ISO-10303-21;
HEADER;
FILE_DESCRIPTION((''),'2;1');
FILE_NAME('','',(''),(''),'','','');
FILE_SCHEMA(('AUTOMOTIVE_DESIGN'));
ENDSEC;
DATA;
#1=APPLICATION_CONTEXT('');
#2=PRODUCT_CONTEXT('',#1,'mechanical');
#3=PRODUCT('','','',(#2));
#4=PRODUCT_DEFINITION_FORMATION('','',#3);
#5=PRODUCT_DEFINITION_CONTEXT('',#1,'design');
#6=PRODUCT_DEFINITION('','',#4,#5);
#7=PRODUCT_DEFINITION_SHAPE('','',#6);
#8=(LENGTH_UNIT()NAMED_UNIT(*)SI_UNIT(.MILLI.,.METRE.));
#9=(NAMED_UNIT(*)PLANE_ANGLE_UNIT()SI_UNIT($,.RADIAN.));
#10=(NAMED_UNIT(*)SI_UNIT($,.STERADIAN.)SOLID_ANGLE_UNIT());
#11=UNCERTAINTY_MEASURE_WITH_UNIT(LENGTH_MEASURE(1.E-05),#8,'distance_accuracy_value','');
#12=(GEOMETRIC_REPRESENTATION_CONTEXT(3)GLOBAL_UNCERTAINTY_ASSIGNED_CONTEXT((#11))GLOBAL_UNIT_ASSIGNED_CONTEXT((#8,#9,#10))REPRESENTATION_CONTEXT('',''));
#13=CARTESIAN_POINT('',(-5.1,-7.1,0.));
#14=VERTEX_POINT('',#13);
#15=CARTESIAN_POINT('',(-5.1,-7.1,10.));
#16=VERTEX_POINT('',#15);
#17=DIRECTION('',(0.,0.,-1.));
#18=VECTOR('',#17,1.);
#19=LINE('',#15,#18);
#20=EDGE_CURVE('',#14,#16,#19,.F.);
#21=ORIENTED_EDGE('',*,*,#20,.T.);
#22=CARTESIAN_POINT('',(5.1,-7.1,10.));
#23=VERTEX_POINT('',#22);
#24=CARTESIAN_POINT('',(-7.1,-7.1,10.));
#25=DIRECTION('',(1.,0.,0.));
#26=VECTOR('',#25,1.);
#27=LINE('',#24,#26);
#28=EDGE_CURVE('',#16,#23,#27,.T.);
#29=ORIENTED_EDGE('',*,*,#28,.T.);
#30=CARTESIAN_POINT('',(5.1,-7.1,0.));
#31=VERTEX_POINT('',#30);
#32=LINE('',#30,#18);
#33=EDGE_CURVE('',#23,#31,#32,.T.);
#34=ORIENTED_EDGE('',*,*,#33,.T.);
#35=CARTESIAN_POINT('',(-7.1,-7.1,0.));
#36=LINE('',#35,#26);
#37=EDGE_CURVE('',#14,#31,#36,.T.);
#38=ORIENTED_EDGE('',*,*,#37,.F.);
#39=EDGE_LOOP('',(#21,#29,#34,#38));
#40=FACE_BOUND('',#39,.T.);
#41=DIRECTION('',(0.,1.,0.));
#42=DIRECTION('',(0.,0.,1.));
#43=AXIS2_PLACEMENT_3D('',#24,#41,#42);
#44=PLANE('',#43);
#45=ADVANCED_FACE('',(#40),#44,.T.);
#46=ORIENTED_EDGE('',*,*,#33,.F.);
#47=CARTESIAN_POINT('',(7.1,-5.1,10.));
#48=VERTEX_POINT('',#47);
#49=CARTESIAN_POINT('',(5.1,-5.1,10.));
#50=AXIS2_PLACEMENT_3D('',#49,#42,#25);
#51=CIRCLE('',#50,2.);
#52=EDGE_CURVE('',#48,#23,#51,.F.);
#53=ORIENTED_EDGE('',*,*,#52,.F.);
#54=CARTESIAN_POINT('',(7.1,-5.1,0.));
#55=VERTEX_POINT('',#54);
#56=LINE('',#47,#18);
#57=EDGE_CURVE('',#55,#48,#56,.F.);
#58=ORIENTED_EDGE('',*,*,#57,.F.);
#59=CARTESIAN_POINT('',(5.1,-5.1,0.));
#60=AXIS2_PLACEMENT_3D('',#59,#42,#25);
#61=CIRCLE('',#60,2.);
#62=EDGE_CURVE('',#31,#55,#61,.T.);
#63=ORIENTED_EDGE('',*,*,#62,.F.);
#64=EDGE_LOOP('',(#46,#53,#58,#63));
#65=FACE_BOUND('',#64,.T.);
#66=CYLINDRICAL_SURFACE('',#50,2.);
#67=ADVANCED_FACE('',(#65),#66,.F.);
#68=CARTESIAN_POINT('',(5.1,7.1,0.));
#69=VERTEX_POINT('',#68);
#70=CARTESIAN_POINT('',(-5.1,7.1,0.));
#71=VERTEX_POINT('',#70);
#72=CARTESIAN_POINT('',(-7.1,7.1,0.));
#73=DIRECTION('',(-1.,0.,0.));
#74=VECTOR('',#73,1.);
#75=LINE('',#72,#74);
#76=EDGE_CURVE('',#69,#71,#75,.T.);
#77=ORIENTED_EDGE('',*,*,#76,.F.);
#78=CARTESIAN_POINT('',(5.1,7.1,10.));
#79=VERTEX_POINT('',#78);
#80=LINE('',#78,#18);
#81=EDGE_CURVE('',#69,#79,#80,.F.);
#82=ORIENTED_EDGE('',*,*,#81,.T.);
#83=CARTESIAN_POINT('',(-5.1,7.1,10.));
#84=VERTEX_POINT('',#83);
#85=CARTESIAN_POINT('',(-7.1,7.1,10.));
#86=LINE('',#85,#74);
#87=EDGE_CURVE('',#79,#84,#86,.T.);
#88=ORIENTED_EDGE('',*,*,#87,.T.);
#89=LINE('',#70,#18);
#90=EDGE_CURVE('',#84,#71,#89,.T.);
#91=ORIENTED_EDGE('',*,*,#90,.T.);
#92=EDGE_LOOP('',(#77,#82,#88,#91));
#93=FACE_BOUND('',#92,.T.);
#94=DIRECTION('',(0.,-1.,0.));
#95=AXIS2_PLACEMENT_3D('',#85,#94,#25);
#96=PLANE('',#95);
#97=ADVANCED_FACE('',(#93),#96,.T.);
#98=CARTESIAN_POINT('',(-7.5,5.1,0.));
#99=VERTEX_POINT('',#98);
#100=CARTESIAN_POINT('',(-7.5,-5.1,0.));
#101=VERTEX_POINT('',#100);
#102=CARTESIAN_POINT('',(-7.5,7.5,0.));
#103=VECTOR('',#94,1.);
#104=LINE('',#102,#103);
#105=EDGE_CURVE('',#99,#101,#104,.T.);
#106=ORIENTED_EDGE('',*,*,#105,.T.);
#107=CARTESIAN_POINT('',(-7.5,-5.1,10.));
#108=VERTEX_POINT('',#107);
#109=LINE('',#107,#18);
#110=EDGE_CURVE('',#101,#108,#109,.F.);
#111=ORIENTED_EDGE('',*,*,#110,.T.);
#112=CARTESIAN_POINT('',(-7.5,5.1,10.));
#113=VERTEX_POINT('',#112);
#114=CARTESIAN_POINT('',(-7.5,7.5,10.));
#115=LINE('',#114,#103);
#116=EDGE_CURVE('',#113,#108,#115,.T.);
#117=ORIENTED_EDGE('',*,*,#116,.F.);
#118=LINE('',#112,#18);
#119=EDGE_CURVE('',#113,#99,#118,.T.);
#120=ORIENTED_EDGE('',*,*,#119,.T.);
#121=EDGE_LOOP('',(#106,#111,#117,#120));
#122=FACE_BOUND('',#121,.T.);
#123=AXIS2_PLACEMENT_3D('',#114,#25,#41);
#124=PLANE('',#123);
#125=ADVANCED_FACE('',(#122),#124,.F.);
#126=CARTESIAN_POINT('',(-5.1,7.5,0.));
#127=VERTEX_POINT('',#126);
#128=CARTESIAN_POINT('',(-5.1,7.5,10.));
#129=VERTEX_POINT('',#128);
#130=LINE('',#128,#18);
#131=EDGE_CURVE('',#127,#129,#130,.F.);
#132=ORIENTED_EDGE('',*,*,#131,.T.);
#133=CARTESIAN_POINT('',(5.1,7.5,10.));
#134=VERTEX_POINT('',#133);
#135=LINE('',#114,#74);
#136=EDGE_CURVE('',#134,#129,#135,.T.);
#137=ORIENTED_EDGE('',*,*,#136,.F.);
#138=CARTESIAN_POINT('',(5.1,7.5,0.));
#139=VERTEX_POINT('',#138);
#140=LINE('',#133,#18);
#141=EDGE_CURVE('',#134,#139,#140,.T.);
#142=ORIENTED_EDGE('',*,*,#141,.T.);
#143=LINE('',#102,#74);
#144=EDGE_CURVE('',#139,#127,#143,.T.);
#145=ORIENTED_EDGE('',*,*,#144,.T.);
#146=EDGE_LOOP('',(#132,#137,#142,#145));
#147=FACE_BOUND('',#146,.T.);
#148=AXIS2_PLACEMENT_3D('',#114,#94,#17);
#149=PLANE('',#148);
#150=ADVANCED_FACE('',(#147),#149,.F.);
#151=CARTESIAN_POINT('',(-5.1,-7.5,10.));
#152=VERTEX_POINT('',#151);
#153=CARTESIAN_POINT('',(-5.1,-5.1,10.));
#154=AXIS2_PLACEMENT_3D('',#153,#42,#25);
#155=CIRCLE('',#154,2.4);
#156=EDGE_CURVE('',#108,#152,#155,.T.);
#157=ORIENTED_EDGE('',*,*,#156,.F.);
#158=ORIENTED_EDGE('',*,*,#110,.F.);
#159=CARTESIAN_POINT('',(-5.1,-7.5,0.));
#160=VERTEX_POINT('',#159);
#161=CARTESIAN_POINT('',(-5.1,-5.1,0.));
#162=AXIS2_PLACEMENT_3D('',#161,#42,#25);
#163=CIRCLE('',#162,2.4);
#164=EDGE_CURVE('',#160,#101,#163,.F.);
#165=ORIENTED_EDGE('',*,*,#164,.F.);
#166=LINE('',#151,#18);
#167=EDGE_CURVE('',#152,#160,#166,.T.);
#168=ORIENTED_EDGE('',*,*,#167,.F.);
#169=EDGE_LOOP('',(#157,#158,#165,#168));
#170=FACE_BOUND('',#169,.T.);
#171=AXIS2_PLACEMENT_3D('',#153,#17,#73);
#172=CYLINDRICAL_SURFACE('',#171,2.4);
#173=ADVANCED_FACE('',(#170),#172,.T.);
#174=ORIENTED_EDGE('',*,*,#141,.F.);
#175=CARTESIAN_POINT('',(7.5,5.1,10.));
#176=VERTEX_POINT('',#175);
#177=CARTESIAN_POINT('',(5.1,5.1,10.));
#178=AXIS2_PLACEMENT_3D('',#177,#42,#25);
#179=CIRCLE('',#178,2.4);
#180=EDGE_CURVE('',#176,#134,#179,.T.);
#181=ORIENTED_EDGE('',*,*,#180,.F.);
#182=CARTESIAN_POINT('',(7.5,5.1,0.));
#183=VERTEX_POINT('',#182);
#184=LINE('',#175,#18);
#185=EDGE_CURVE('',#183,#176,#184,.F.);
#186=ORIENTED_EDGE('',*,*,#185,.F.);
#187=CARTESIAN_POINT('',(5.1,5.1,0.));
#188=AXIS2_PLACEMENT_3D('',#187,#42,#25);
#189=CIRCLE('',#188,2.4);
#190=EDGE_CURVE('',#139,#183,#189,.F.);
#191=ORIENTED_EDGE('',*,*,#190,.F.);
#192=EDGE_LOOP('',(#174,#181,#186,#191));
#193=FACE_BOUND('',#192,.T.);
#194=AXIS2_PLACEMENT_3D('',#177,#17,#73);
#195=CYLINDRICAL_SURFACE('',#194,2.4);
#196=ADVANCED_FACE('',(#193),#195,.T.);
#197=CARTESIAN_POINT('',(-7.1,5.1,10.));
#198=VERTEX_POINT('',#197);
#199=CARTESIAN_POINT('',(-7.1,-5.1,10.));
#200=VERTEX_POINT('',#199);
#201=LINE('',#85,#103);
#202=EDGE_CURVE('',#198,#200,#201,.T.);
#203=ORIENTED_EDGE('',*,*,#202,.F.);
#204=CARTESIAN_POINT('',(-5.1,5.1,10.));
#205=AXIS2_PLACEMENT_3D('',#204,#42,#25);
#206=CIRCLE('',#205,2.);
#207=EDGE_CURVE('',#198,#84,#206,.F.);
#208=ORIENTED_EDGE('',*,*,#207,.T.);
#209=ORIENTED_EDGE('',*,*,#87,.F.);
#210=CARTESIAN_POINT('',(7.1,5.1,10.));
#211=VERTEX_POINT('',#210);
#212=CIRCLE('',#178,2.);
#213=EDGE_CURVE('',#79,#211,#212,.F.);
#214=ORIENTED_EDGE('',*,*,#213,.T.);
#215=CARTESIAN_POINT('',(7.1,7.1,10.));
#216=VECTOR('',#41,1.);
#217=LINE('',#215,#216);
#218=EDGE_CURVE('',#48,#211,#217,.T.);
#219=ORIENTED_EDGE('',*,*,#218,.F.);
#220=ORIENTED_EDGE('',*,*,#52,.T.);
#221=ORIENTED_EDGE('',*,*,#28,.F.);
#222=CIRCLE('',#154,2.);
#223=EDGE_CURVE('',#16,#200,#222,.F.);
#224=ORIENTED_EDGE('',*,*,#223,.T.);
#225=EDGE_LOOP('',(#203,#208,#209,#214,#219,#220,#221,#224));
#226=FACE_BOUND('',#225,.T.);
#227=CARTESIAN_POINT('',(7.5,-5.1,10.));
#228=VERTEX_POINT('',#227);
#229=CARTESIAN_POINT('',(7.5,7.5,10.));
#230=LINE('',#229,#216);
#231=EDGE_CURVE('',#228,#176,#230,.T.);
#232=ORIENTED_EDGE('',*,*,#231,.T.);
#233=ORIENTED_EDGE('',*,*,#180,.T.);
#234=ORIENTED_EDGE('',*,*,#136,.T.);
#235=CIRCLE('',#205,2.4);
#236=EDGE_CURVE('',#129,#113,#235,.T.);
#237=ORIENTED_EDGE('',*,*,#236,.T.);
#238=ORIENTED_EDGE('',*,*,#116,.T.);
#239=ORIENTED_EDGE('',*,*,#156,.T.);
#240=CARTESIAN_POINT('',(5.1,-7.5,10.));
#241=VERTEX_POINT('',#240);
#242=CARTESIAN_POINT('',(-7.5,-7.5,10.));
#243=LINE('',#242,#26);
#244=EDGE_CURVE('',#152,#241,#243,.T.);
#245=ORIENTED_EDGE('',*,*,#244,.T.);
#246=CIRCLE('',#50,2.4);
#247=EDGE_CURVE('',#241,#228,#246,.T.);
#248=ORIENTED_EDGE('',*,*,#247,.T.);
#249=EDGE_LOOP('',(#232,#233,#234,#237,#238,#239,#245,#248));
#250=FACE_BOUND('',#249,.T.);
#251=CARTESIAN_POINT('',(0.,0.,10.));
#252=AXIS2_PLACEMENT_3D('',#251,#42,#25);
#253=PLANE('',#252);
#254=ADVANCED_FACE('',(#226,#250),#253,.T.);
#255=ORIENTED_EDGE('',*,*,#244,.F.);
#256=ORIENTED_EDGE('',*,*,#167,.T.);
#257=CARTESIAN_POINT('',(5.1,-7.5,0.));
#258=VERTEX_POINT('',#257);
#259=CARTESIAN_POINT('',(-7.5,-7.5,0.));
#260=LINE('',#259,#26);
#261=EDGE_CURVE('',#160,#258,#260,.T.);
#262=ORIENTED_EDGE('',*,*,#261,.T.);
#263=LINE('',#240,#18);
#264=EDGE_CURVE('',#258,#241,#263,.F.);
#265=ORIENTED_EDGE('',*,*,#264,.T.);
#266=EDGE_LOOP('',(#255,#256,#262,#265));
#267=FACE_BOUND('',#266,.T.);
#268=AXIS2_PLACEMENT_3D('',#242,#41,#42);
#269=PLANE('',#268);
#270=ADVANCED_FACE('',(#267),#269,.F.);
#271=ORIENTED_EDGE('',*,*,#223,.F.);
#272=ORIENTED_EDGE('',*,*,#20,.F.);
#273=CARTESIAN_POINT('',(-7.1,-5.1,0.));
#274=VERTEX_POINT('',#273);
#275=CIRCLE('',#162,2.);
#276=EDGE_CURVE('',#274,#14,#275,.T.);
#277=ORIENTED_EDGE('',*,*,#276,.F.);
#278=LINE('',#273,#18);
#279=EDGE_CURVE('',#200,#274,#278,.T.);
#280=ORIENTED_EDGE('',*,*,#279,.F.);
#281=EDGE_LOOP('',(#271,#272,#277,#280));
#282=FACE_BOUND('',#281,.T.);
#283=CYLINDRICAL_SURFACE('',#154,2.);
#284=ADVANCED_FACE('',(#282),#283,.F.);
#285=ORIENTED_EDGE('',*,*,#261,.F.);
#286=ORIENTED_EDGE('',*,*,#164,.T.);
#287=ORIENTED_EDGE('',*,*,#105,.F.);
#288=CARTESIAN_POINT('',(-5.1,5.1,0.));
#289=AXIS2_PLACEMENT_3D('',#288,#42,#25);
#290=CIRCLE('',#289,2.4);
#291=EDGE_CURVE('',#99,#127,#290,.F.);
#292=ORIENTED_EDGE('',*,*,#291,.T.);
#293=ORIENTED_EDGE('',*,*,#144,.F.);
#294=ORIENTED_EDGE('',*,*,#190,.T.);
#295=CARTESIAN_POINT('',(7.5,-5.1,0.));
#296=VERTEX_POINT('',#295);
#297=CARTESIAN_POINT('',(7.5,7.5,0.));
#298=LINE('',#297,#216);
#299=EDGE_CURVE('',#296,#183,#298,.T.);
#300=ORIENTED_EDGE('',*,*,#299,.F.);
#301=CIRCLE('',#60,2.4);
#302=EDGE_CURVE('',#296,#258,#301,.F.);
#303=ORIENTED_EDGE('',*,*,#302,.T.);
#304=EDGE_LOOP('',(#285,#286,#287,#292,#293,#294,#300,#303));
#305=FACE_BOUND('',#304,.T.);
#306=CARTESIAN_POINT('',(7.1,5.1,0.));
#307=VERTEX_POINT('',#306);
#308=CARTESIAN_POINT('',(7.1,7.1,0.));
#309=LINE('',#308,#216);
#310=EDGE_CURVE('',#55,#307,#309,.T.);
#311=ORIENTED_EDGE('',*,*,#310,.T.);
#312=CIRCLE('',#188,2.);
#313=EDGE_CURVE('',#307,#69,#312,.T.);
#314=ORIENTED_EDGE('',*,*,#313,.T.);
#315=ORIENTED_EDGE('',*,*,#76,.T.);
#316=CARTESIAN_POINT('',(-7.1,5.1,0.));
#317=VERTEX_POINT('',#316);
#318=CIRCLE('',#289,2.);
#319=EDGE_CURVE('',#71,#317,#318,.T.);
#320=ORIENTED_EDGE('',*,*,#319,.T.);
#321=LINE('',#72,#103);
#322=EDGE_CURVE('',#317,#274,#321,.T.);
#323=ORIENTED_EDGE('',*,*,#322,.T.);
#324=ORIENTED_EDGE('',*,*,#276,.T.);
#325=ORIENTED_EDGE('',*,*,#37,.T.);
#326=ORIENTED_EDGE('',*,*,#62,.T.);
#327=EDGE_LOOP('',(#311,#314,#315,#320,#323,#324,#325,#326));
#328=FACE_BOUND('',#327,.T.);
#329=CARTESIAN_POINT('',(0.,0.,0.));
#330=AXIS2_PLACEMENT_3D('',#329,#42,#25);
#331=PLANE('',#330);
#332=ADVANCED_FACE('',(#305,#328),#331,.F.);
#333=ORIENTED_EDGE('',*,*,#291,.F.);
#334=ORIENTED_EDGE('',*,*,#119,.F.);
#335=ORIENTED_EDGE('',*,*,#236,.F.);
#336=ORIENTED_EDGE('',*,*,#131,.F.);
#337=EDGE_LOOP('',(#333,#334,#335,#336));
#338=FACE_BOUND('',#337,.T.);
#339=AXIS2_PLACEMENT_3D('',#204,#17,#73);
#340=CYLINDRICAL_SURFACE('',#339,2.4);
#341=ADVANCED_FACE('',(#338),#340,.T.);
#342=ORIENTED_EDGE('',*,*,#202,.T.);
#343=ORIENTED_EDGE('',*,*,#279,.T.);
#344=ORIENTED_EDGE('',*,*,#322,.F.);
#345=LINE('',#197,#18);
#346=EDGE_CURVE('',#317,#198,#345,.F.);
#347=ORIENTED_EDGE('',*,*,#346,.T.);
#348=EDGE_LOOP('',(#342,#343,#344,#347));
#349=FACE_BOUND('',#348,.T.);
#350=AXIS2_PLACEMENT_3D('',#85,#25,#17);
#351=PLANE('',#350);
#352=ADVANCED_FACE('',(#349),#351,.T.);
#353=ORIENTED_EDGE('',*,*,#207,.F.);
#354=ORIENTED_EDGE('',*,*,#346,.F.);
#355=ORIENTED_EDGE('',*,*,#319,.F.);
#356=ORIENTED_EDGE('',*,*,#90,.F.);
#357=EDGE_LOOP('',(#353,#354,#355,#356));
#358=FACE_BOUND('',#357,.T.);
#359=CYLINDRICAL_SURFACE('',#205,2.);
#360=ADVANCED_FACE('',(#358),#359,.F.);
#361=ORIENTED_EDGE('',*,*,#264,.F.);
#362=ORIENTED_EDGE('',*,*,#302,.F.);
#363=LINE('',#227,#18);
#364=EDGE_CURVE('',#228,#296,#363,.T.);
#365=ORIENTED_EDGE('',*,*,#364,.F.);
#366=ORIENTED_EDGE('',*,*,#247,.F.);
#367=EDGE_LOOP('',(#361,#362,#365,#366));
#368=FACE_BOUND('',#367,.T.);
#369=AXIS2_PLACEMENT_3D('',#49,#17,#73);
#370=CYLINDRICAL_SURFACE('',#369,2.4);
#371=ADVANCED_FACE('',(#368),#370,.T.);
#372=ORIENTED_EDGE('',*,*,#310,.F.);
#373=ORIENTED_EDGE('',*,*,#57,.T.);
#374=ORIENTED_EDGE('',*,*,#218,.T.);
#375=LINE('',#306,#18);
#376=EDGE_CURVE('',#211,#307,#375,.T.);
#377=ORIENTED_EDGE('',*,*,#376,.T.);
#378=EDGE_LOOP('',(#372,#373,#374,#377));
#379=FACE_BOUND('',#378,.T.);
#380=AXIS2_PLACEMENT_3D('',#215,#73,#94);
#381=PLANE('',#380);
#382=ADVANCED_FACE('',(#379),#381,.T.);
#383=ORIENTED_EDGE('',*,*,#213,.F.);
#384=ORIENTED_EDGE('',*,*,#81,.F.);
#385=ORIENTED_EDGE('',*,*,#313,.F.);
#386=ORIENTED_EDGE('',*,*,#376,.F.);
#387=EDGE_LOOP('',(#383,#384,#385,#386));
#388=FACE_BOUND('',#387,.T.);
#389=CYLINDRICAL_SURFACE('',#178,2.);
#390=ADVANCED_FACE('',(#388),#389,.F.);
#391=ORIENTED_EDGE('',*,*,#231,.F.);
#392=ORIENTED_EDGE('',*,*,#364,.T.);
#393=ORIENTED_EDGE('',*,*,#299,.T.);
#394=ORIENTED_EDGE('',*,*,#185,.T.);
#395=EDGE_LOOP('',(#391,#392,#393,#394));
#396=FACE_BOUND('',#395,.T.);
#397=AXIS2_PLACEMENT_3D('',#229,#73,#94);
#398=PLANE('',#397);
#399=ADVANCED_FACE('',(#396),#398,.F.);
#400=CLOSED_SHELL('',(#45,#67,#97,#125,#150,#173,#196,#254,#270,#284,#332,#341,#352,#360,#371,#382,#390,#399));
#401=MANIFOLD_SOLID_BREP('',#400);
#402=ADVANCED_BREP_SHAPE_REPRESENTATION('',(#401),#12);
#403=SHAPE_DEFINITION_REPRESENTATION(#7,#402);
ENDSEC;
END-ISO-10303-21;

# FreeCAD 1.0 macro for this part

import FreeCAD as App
import Part
import Sketcher

V = App.Vector
Q = App.Units.Quantity


def edges_at(feature, points):
    """Names of the edges that pass closest to the given points."""
    edges = feature.Shape.Edges
    near = lambda p: min(range(len(edges)), key=lambda i: edges[i].distToShape(Part.Vertex(*p))[0])
    return sorted({f"Edge{near(p) + 1}" for p in points})

doc = App.newDocument("Part")
body = doc.addObject("PartDesign::Body", "Body")

sketch1 = body.newObject("Sketcher::SketchObject", "Sketch")
sketch1.AttachmentSupport = (doc.getObject("XY_Plane"), [""])
sketch1.MapMode = "FlatFace"
sketch1.addGeometry(Part.LineSegment(V(-8, 8, 0), V(-8, -8, 0)), False)
sketch1.addGeometry(Part.LineSegment(V(-8, -8, 0), V(8, -8, 0)), False)
sketch1.addGeometry(Part.LineSegment(V(8, -8, 0), V(8, 8, 0)), False)
sketch1.addGeometry(Part.LineSegment(V(8, 8, 0), V(-8, 8, 0)), False)
sketch1.addGeometry(Part.LineSegment(V(7, -7, 0), V(-7, -7, 0)), False)
sketch1.addGeometry(Part.LineSegment(V(-7, -7, 0), V(-7, 7, 0)), False)
sketch1.addGeometry(Part.LineSegment(V(-7, 7, 0), V(7, 7, 0)), False)
sketch1.addGeometry(Part.LineSegment(V(7, 7, 0), V(7, -7, 0)), False)
sketch1.addConstraint(Sketcher.Constraint("Coincident", 0, 2, 1, 1))
sketch1.addConstraint(Sketcher.Constraint("Coincident", 1, 2, 2, 1))
sketch1.addConstraint(Sketcher.Constraint("Coincident", 2, 2, 3, 1))
sketch1.addConstraint(Sketcher.Constraint("Coincident", 3, 2, 0, 1))
sketch1.addConstraint(Sketcher.Constraint("Coincident", 4, 2, 5, 1))
sketch1.addConstraint(Sketcher.Constraint("Coincident", 5, 2, 6, 1))
sketch1.addConstraint(Sketcher.Constraint("Coincident", 6, 2, 7, 1))
sketch1.addConstraint(Sketcher.Constraint("Coincident", 7, 2, 4, 1))
sketch1.addConstraint(Sketcher.Constraint("Vertical", 0))
sketch1.addConstraint(Sketcher.Constraint("Horizontal", 1))
sketch1.addConstraint(Sketcher.Constraint("Vertical", 2))
sketch1.addConstraint(Sketcher.Constraint("Horizontal", 3))
sketch1.addConstraint(Sketcher.Constraint("Horizontal", 4))
sketch1.addConstraint(Sketcher.Constraint("Vertical", 5))
sketch1.addConstraint(Sketcher.Constraint("Horizontal", 6))
sketch1.addConstraint(Sketcher.Constraint("Vertical", 7))
sketch1.addConstraint(Sketcher.Constraint("Symmetric", 0, 2, 2, 2, -1, 1))
sketch1.addConstraint(Sketcher.Constraint("Symmetric", 4, 2, 6, 2, -1, 1))
sketch1.addConstraint(Sketcher.Constraint("Equal", 3, 0))
sketch1.addConstraint(Sketcher.Constraint("Equal", 6, 5))
sketch1.addConstraint(Sketcher.Constraint("DistanceX", 1, 1, 1, 2, Q("15 mm")))
sketch1.addConstraint(Sketcher.Constraint("DistanceX", 4, 2, 4, 1, Q("14.2 mm")))
pad1 = body.newObject("PartDesign::Pad", "Pad")
pad1.Profile = sketch1
pad1.Length = 10
doc.recompute()

fillet = body.newObject("PartDesign::Fillet", "Fillet")
fillet.Base = (pad1, edges_at(pad1, [
    (7.1, -7.1, 5),
    (7.1, 7.1, 5),
    (-7.1, 7.1, 5),
    (-7.1, -7.1, 5),
]))
fillet.Radius = 2
doc.recompute()

fillet2 = body.newObject("PartDesign::Fillet", "Fillet001")
fillet2.Base = (fillet, edges_at(fillet, [
    (7.5, -7.5, 5),
    (-7.5, -7.5, 5),
    (-7.5, 7.5, 5),
    (7.5, 7.5, 5),
]))
fillet2.Radius = 2.4

doc.recompute()
